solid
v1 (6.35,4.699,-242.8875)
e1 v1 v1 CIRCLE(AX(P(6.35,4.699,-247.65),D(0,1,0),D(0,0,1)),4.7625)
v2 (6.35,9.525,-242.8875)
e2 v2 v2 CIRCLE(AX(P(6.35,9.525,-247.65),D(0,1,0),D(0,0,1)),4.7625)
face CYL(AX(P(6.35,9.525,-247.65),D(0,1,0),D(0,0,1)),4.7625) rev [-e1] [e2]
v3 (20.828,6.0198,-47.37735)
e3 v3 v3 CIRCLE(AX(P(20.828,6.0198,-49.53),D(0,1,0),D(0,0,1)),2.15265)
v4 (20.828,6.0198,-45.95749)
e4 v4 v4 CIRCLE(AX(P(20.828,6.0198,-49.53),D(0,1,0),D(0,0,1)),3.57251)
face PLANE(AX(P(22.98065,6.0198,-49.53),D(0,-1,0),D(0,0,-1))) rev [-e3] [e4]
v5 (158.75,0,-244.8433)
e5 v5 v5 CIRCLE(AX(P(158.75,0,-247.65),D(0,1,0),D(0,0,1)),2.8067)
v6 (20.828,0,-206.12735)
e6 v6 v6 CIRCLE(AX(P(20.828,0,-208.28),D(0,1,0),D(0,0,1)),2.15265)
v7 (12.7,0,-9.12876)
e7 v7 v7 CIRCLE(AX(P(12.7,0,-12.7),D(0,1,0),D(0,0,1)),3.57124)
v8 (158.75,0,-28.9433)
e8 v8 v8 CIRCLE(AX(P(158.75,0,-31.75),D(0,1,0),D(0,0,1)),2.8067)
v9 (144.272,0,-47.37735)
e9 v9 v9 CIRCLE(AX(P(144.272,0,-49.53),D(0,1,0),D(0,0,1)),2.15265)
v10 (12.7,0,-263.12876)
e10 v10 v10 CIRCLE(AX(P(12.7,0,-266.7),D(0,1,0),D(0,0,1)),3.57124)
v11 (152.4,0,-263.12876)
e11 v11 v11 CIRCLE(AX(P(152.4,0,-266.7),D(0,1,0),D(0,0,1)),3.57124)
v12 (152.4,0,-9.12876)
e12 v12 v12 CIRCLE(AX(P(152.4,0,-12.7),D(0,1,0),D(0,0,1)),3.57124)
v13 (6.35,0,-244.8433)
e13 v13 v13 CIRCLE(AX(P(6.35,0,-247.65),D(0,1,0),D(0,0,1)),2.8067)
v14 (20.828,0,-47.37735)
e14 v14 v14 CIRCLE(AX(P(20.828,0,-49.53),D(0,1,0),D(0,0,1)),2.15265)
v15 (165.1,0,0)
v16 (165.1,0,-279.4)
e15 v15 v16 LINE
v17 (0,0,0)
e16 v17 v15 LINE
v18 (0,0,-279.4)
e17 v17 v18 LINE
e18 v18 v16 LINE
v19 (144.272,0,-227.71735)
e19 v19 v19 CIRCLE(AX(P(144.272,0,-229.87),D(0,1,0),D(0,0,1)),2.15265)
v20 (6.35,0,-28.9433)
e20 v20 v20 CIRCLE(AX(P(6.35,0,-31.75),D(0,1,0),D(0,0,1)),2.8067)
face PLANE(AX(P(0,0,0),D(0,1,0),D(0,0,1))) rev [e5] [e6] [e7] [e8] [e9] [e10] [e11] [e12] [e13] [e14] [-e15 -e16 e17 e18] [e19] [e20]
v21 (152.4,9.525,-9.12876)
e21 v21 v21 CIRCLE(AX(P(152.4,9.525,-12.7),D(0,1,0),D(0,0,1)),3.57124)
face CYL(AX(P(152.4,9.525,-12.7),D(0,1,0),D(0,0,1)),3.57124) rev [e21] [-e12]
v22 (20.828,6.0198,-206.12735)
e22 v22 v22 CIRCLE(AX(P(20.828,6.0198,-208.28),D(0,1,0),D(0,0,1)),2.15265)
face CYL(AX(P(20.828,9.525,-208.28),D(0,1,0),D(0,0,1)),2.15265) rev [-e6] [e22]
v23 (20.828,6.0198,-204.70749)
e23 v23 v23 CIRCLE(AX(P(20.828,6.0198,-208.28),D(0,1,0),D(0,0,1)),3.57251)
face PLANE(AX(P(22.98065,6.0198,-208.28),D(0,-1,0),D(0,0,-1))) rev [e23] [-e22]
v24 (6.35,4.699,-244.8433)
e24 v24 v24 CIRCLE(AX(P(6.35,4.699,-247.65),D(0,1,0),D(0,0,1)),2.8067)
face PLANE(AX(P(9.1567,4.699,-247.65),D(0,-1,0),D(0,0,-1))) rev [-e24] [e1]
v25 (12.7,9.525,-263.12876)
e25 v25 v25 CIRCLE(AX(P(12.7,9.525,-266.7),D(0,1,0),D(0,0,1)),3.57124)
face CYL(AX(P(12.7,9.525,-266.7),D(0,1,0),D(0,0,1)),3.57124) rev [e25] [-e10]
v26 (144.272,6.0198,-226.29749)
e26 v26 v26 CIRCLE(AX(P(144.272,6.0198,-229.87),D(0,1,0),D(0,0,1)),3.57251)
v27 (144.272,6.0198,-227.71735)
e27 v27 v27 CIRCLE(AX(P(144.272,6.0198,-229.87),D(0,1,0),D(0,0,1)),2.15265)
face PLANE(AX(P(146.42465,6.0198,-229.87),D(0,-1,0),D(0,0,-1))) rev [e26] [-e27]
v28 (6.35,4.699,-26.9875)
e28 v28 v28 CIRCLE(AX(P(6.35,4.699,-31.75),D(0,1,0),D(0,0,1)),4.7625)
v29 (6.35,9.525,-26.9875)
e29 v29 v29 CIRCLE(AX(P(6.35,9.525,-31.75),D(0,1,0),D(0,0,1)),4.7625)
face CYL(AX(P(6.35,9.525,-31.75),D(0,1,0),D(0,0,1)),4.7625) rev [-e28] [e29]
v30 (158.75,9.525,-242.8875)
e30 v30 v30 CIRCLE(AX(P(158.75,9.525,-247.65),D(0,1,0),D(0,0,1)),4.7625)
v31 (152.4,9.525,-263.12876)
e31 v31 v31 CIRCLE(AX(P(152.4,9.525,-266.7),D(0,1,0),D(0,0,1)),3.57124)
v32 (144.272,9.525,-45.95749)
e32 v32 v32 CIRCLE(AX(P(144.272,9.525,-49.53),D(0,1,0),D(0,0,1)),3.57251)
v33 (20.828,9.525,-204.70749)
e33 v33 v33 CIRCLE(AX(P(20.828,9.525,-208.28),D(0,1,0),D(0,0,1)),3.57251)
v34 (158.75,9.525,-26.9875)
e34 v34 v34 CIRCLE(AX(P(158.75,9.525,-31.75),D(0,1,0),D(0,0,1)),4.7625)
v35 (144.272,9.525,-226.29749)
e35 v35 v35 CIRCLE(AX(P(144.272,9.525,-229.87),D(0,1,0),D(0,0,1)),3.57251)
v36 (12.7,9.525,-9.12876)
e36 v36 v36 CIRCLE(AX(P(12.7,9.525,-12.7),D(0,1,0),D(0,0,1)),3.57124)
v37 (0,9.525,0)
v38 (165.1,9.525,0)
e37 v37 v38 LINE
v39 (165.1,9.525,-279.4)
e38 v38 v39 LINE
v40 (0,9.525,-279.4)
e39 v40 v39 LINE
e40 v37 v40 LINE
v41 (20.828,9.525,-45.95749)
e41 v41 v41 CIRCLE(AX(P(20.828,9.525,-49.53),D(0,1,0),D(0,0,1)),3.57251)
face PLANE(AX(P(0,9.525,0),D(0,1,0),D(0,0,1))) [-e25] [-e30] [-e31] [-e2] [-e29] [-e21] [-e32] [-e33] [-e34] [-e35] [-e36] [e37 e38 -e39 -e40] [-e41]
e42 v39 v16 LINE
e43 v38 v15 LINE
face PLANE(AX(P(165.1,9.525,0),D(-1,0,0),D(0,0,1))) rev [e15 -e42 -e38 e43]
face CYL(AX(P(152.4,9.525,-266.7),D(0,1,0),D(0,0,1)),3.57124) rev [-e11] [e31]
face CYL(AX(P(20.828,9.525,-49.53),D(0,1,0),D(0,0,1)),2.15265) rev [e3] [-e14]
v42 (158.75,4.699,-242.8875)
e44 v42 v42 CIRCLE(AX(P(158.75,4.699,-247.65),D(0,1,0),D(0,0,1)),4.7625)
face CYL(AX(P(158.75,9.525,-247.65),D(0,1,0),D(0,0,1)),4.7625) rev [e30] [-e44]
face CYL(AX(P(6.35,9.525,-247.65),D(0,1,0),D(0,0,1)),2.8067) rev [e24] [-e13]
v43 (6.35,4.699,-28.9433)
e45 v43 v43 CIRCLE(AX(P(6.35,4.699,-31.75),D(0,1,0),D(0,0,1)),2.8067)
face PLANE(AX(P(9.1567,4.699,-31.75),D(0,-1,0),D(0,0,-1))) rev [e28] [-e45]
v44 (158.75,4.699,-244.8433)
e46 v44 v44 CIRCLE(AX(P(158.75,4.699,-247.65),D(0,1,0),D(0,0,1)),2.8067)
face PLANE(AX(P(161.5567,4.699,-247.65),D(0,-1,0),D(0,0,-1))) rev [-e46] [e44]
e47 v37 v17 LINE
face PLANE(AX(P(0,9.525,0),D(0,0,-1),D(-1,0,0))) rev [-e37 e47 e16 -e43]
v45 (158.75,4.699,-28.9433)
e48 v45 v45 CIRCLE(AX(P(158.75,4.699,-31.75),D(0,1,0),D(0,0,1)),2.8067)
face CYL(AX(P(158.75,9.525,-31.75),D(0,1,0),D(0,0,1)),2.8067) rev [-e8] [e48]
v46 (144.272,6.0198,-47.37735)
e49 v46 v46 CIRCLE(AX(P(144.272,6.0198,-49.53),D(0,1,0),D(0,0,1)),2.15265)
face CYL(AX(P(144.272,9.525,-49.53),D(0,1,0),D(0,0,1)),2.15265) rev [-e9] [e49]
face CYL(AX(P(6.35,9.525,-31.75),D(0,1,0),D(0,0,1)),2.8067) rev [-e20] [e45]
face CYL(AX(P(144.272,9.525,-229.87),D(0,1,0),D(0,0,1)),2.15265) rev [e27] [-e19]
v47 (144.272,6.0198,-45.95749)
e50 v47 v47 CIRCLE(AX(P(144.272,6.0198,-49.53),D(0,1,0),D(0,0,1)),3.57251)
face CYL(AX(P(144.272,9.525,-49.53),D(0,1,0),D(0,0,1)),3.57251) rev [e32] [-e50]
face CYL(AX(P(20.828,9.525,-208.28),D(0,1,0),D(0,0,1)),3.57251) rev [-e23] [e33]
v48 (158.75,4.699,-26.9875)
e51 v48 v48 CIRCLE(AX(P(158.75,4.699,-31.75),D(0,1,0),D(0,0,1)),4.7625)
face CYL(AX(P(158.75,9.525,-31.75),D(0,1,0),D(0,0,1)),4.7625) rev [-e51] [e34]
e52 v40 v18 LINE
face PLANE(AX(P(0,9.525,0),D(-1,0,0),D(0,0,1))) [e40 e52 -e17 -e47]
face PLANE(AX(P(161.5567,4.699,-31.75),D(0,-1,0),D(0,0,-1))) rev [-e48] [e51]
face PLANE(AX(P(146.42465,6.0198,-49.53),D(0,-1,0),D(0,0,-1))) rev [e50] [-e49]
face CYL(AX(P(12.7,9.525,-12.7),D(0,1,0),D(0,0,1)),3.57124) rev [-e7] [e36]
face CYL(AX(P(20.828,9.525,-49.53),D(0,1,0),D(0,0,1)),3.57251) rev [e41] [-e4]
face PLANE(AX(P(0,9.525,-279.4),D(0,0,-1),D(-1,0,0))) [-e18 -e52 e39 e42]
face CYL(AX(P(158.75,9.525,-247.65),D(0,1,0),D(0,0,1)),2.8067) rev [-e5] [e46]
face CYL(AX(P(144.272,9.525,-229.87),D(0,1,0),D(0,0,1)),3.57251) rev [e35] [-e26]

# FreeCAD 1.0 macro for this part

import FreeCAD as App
import Part
import Sketcher
from FreeCAD import Vector
Q = App.Units.Quantity

doc = App.newDocument("Part")
params = doc.addObject("Spreadsheet::Sheet", "Params")
for row, (alias, value) in enumerate([
    ("sketch1_height", "11 in"),
    ("sketch1_width", "6.5 in"),
    ("pad1_length", "0.375 in"),
    ("hole_diameter", "0.2812 in"),
    ("sketch3_diameter", "0.221 in"),
    ("hole2_diameter", "0.221 in"),
    ("hole2_cbore_diameter", "0.375 in"),
    ("hole2_cbore_depth", "0.19 in"),
    ("hole3_diameter", "0.1695 in"),
    ("hole3_cbore_diameter", "0.2813 in"),
    ("hole3_cbore_depth", "0.138 in"),
], start=1):
    params.set(f"A{row}", alias)
    params.set(f"B{row}", "=" + value)
    params.setAlias(f"B{row}", alias)

body = doc.addObject("PartDesign::Body", "Body")

# Sketch on XZ plane
sketch1 = body.newObject("Sketcher::SketchObject", "Sketch")
sketch1.AttachmentSupport = (doc.getObject("XZ_Plane"), [""])
sketch1.MapMode = "FlatFace"
sketch1.addGeometry(Part.LineSegment(Vector(0, -279, 0), Vector(0, 0, 0)), False)
sketch1.addGeometry(Part.LineSegment(Vector(0, 0, 0), Vector(165, 0, 0)), False)
sketch1.addGeometry(Part.LineSegment(Vector(165, 0, 0), Vector(165, -279, 0)), False)
sketch1.addGeometry(Part.LineSegment(Vector(165, -279, 0), Vector(0, -279, 0)), False)
sketch1.addConstraint(Sketcher.Constraint("Coincident", 0, 2, 1, 1))
sketch1.addConstraint(Sketcher.Constraint("Coincident", 1, 2, 2, 1))
sketch1.addConstraint(Sketcher.Constraint("Coincident", 2, 2, 3, 1))
sketch1.addConstraint(Sketcher.Constraint("Coincident", 3, 2, 0, 1))
sketch1.addConstraint(Sketcher.Constraint("Vertical", 0))
sketch1.addConstraint(Sketcher.Constraint("Horizontal", 1))
sketch1.addConstraint(Sketcher.Constraint("Vertical", 2))
sketch1.addConstraint(Sketcher.Constraint("Horizontal", 3))
sketch1.addConstraint(Sketcher.Constraint("Coincident", 0, 2, -1, 1))
sketch1.addConstraint(Sketcher.Constraint("DistanceY", 0, 1, 0, 2, Q("11 in")))
sketch1.addConstraint(Sketcher.Constraint("DistanceX", 1, 1, 1, 2, Q("6.5 in")))
sketch1.setExpression("Constraints[9]", "Params.sketch1_height")
sketch1.setExpression("Constraints[10]", "Params.sketch1_width")
pad1 = body.newObject("PartDesign::Pad", "Pad")
pad1.Profile = sketch1
pad1.setExpression("Length", "Params.pad1_length")
pad1.Reversed = True

# Sketch on XZ plane
sketch2 = body.newObject("Sketcher::SketchObject", "Sketch001")
sketch2.AttachmentSupport = (doc.getObject("XZ_Plane"), [""])
sketch2.MapMode = "FlatFace"
sketch2.AttachmentOffset = App.Placement(Vector(0, 0, -0.375 * 25.4), App.Rotation())
sketch2.addGeometry(Part.Circle(Vector(152.4, -12.7, 0), Vector(0, 0, 1), 3.6), False)
sketch2.addGeometry(Part.Circle(Vector(12.7, -12.7, 0), Vector(0, 0, 1), 3.6), False)
sketch2.addGeometry(Part.Circle(Vector(12.7, -266.7, 0), Vector(0, 0, 1), 3.6), False)
sketch2.addGeometry(Part.Circle(Vector(152.4, -266.7, 0), Vector(0, 0, 1), 3.6), False)
sketch2.addConstraint(Sketcher.Constraint("Equal", 0, 1))
sketch2.addConstraint(Sketcher.Constraint("Equal", 1, 2))
sketch2.addConstraint(Sketcher.Constraint("Equal", 2, 3))
sketch2.addConstraint(Sketcher.Constraint("Horizontal", 0, 3, 1, 3))
sketch2.addConstraint(Sketcher.Constraint("Horizontal", 2, 3, 3, 3))
sketch2.addConstraint(Sketcher.Constraint("Vertical", 1, 3, 2, 3))
sketch2.addConstraint(Sketcher.Constraint("Vertical", 0, 3, 3, 3))
sketch2.addConstraint(Sketcher.Constraint("DistanceX", -1, 1, 0, 3, Q("6 in")))
sketch2.addConstraint(Sketcher.Constraint("DistanceY", 2, 3, 1, 3, Q("10 in")))
sketch2.addConstraint(Sketcher.Constraint("Diameter", 0, Q("0.2812 in")))
sketch2.addConstraint(Sketcher.Constraint("DistanceY", 0, 3, -1, 1, Q("0.5 in")))
sketch2.addConstraint(Sketcher.Constraint("DistanceX", -1, 1, 1, 3, Q("0.5 in")))
doc.recompute()
hole = body.newObject("PartDesign::Hole", "Hole")
hole.Profile = sketch2
hole.ThreadType = "None"
hole.setExpression("Diameter", "Params.hole_diameter")
hole.DepthType = "ThroughAll"
hole.Reversed = True

# Sketch on XZ plane
sketch3 = body.newObject("Sketcher::SketchObject", "Sketch002")
sketch3.AttachmentSupport = (doc.getObject("XZ_Plane"), [""])
sketch3.MapMode = "FlatFace"
sketch3.AttachmentOffset = App.Placement(Vector(0, 0, -0.375 * 25.4), App.Rotation())
sketch3.addGeometry(Part.Circle(Vector(6.3, -247.7, 0), Vector(0, 0, 1), 2.8), False)
sketch3.addGeometry(Part.Circle(Vector(6.3, -31.8, 0), Vector(0, 0, 1), 2.8), False)
sketch3.addGeometry(Part.Circle(Vector(158.8, -31.8, 0), Vector(0, 0, 1), 2.8), False)
sketch3.addGeometry(Part.Circle(Vector(158.8, -247.7, 0), Vector(0, 0, 1), 2.8), False)
sketch3.addConstraint(Sketcher.Constraint("Equal", 0, 1))
sketch3.addConstraint(Sketcher.Constraint("Equal", 1, 2))
sketch3.addConstraint(Sketcher.Constraint("Equal", 2, 3))
sketch3.addConstraint(Sketcher.Constraint("Horizontal", 1, 3, 2, 3))
sketch3.addConstraint(Sketcher.Constraint("Horizontal", 0, 3, 3, 3))
sketch3.addConstraint(Sketcher.Constraint("Vertical", 0, 3, 1, 3))
sketch3.addConstraint(Sketcher.Constraint("Vertical", 2, 3, 3, 3))
sketch3.addConstraint(Sketcher.Constraint("Diameter", 0, Q("0.221 in")))
sketch3.addConstraint(Sketcher.Constraint("DistanceX", 1, 3, 2, 3, Q("6 in")))
sketch3.addConstraint(Sketcher.Constraint("DistanceY", 0, 3, 1, 3, Q("8.5 in")))
sketch3.addConstraint(Sketcher.Constraint("DistanceX", -1, 1, 0, 3, Q("0.25 in")))
sketch3.addConstraint(Sketcher.Constraint("DistanceY", 0, 3, -1, 1, Q("9.75 in")))
sketch3.setExpression("Constraints[7]", "Params.sketch3_diameter")
doc.recompute()
hole2 = body.newObject("PartDesign::Hole", "Hole001")
hole2.Profile = sketch3
hole2.ThreadType = "None"
hole2.setExpression("Diameter", "Params.hole2_diameter")
hole2.DepthType = "ThroughAll"
hole2.HoleCutType = "Counterbore"
hole2.setExpression("HoleCutDiameter", "Params.hole2_cbore_diameter")
hole2.setExpression("HoleCutDepth", "Params.hole2_cbore_depth")
hole2.Reversed = True

# Sketch on XZ plane
sketch4 = body.newObject("Sketcher::SketchObject", "Sketch003")
sketch4.AttachmentSupport = (doc.getObject("XZ_Plane"), [""])
sketch4.MapMode = "FlatFace"
sketch4.AttachmentOffset = App.Placement(Vector(0, 0, -0.375 * 25.4), App.Rotation())
sketch4.addGeometry(Part.Circle(Vector(144.3, -229.9, 0), Vector(0, 0, 1), 2.2), False)
sketch4.addGeometry(Part.Circle(Vector(144.3, -49.5, 0), Vector(0, 0, 1), 2.2), False)
sketch4.addGeometry(Part.Circle(Vector(20.8, -49.5, 0), Vector(0, 0, 1), 2.2), False)
sketch4.addGeometry(Part.Circle(Vector(20.8, -208.3, 0), Vector(0, 0, 1), 2.2), False)
sketch4.addConstraint(Sketcher.Constraint("Equal", 0, 1))
sketch4.addConstraint(Sketcher.Constraint("Equal", 1, 2))
sketch4.addConstraint(Sketcher.Constraint("Equal", 2, 3))
sketch4.addConstraint(Sketcher.Constraint("Horizontal", 1, 3, 2, 3))
sketch4.addConstraint(Sketcher.Constraint("Vertical", 0, 3, 1, 3))
sketch4.addConstraint(Sketcher.Constraint("Vertical", 2, 3, 3, 3))
sketch4.addConstraint(Sketcher.Constraint("Diameter", 0, Q("0.1695 in")))
sketch4.addConstraint(Sketcher.Constraint("DistanceY", 3, 3, -1, 1, Q("8.2 in")))
sketch4.addConstraint(Sketcher.Constraint("DistanceY", 0, 3, 1, 3, Q("7.1 in")))
sketch4.addConstraint(Sketcher.Constraint("DistanceX", -1, 1, 0, 3, Q("5.68 in")))
sketch4.addConstraint(Sketcher.Constraint("DistanceY", 0, 3, -1, 1, Q("9.05 in")))
sketch4.addConstraint(Sketcher.Constraint("DistanceX", -1, 1, 2, 3, Q("0.82 in")))
doc.recompute()
hole3 = body.newObject("PartDesign::Hole", "Hole002")
hole3.Profile = sketch4
hole3.ThreadType = "None"
hole3.setExpression("Diameter", "Params.hole3_diameter")
hole3.DepthType = "ThroughAll"
hole3.HoleCutType = "Counterbore"
hole3.setExpression("HoleCutDiameter", "Params.hole3_cbore_diameter")
hole3.setExpression("HoleCutDepth", "Params.hole3_cbore_depth")
hole3.Reversed = True

doc.recompute()
